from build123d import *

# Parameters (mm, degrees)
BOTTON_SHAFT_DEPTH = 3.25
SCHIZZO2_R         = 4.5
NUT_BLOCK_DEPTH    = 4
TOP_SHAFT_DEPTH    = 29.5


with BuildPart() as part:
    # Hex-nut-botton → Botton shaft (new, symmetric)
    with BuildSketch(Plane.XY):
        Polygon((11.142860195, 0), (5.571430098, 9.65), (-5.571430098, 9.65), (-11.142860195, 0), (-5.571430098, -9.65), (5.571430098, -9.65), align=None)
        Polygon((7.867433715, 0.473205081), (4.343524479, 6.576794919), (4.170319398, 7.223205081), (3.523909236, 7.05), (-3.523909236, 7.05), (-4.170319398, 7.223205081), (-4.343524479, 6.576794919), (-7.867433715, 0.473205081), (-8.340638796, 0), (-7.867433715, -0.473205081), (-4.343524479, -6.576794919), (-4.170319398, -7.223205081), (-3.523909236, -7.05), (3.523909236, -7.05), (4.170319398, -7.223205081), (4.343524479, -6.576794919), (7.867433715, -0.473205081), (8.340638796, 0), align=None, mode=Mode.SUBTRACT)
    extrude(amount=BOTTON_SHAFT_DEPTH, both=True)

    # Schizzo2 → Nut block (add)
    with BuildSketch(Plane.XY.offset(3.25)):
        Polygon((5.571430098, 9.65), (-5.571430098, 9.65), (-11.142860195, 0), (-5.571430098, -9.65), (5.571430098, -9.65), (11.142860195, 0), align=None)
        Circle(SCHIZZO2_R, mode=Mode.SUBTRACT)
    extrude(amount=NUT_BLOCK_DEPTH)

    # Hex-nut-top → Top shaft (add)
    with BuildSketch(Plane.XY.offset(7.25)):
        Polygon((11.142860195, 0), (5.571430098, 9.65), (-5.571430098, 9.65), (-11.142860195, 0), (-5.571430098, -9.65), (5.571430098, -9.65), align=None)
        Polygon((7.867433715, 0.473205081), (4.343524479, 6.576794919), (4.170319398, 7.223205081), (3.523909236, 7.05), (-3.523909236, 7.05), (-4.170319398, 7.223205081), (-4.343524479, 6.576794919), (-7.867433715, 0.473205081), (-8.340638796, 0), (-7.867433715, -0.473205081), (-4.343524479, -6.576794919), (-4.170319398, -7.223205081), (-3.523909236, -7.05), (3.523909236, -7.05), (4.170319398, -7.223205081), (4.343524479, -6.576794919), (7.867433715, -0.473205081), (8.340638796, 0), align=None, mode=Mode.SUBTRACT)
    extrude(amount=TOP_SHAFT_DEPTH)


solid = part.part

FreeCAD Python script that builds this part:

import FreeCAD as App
import Part
import Sketcher
Q = App.Units.Quantity

doc = App.newDocument("Part")
body = doc.addObject("PartDesign::Body", "Body")

# Sketch on XY plane
sketch1 = body.newObject("Sketcher::SketchObject", "Sketch")
sketch1.AttachmentSupport = (doc.getObject("XY_Plane"), [""])
sketch1.MapMode = "FlatFace"
sketch1.addGeometry([
    Part.LineSegment(App.Vector(11.1, 0, 0), App.Vector(5.6, 9.7, 0)),  # 0
    Part.LineSegment(App.Vector(5.6, 9.7, 0), App.Vector(-5.6, 9.7, 0)),  # 1
    Part.LineSegment(App.Vector(-5.6, 9.7, 0), App.Vector(-11.1, 0, 0)),  # 2
    Part.LineSegment(App.Vector(-11.1, 0, 0), App.Vector(-5.6, -9.7, 0)),  # 3
    Part.LineSegment(App.Vector(-5.6, -9.7, 0), App.Vector(5.6, -9.7, 0)),  # 4
    Part.LineSegment(App.Vector(5.6, -9.7, 0), App.Vector(11.1, 0, 0)),  # 5
    Part.LineSegment(App.Vector(4.3, 6.6, 0), App.Vector(7.9, 0.5, 0)),  # 6
    Part.LineSegment(App.Vector(7.9, 0.5, 0), App.Vector(8.3, 0, 0)),  # 7
    Part.LineSegment(App.Vector(8.3, 0, 0), App.Vector(7.9, -0.5, 0)),  # 8
    Part.LineSegment(App.Vector(7.9, -0.5, 0), App.Vector(4.3, -6.6, 0)),  # 9
    Part.LineSegment(App.Vector(4.3, -6.6, 0), App.Vector(4.2, -7.2, 0)),  # 10
    Part.LineSegment(App.Vector(4.2, -7.2, 0), App.Vector(3.5, -7, 0)),  # 11
    Part.LineSegment(App.Vector(3.5, -7, 0), App.Vector(-3.5, -7, 0)),  # 12
    Part.LineSegment(App.Vector(-3.5, -7, 0), App.Vector(-4.2, -7.2, 0)),  # 13
    Part.LineSegment(App.Vector(-4.2, -7.2, 0), App.Vector(-4.3, -6.6, 0)),  # 14
    Part.LineSegment(App.Vector(-4.3, -6.6, 0), App.Vector(-7.9, -0.5, 0)),  # 15
    Part.LineSegment(App.Vector(-7.9, -0.5, 0), App.Vector(-8.3, 0, 0)),  # 16
    Part.LineSegment(App.Vector(-8.3, 0, 0), App.Vector(-7.9, 0.5, 0)),  # 17
    Part.LineSegment(App.Vector(-7.9, 0.5, 0), App.Vector(-4.3, 6.6, 0)),  # 18
    Part.LineSegment(App.Vector(-4.3, 6.6, 0), App.Vector(-4.2, 7.2, 0)),  # 19
    Part.LineSegment(App.Vector(-4.2, 7.2, 0), App.Vector(-3.5, 7, 0)),  # 20
    Part.LineSegment(App.Vector(-3.5, 7, 0), App.Vector(3.5, 7, 0)),  # 21
    Part.LineSegment(App.Vector(3.5, 7, 0), App.Vector(4.2, 7.2, 0)),  # 22
    Part.LineSegment(App.Vector(4.2, 7.2, 0), App.Vector(4.3, 6.6, 0)),  # 23
], False)
sketch1.addConstraint([
    Sketcher.Constraint("Coincident", 0, 2, 1, 1),
    Sketcher.Constraint("Coincident", 1, 2, 2, 1),
    Sketcher.Constraint("Coincident", 2, 2, 3, 1),
    Sketcher.Constraint("Coincident", 3, 2, 4, 1),
    Sketcher.Constraint("Coincident", 4, 2, 5, 1),
    Sketcher.Constraint("Coincident", 5, 2, 0, 1),
    Sketcher.Constraint("Coincident", 6, 2, 7, 1),
    Sketcher.Constraint("Coincident", 7, 2, 8, 1),
    Sketcher.Constraint("Coincident", 8, 2, 9, 1),
    Sketcher.Constraint("Coincident", 9, 2, 10, 1),
    Sketcher.Constraint("Coincident", 10, 2, 11, 1),
    Sketcher.Constraint("Coincident", 11, 2, 12, 1),
    Sketcher.Constraint("Coincident", 12, 2, 13, 1),
    Sketcher.Constraint("Coincident", 13, 2, 14, 1),
    Sketcher.Constraint("Coincident", 14, 2, 15, 1),
    Sketcher.Constraint("Coincident", 15, 2, 16, 1),
    Sketcher.Constraint("Coincident", 16, 2, 17, 1),
    Sketcher.Constraint("Coincident", 17, 2, 18, 1),
    Sketcher.Constraint("Coincident", 18, 2, 19, 1),
    Sketcher.Constraint("Coincident", 19, 2, 20, 1),
    Sketcher.Constraint("Coincident", 20, 2, 21, 1),
    Sketcher.Constraint("Coincident", 21, 2, 22, 1),
    Sketcher.Constraint("Coincident", 22, 2, 23, 1),
    Sketcher.Constraint("Coincident", 23, 2, 6, 1),
    Sketcher.Constraint("Horizontal", 1),
    Sketcher.Constraint("Horizontal", 4),
    Sketcher.Constraint("Horizontal", 12),
    Sketcher.Constraint("Horizontal", 21),
    Sketcher.Constraint("Symmetric", 0, 2, 3, 2, -1, 1),
    Sketcher.Constraint("Symmetric", 2, 2, 5, 2, -1, 1),
    Sketcher.Constraint("Symmetric", 6, 2, 15, 2, -1, 1),
    Sketcher.Constraint("Symmetric", 7, 2, 16, 2, -1, 1),
    Sketcher.Constraint("Symmetric", 8, 2, 17, 2, -1, 1),
    Sketcher.Constraint("Symmetric", 9, 2, 18, 2, -1, 1),
    Sketcher.Constraint("Symmetric", 10, 2, 19, 2, -1, 1),
    Sketcher.Constraint("Symmetric", 11, 2, 20, 2, -1, 1),
    Sketcher.Constraint("Symmetric", 13, 2, 22, 2, -1, 1),
    Sketcher.Constraint("Symmetric", 14, 2, 23, 2, -1, 1),
    Sketcher.Constraint("Symmetric", 10, 2, 13, 2, -2),
    Sketcher.Constraint("Symmetric", 9, 2, 14, 2, -2),
    Sketcher.Constraint("Symmetric", 8, 2, 15, 2, -2),
    Sketcher.Constraint("PointOnObject", 2, 2, -1),
    Sketcher.Constraint("PointOnObject", 7, 2, -1),
    Sketcher.Constraint("Parallel", 2, 5),
    Sketcher.Constraint("Parallel", 3, 6),
    Sketcher.Constraint("Perpendicular", 7, 8),
    Sketcher.Constraint("Parallel", 5, 9),
    Sketcher.Constraint("Perpendicular", 10, 11),
    Sketcher.Constraint("Perpendicular", 13, 14),
    Sketcher.Constraint("Perpendicular", 14, 22),
    Sketcher.Constraint("Equal", 8, 10),
    Sketcher.Constraint("Equal", 10, 11),
    Sketcher.Constraint("Angle", 0, Q("120 deg")),
    Sketcher.Constraint("Angle", 10, Q("-105 deg")),
    Sketcher.Constraint("DistanceY", 3, 2, 1, 2, 19.3),
    Sketcher.Constraint("DistanceY", 4, 2, 11, 2, 2.6),
    Sketcher.Constraint("DistanceY", 10, 2, 8, 2, 6.75),
    Sketcher.Constraint("DistanceX", 1, 2, 1, 1, 11.14286),
    Sketcher.Constraint("DistanceX", 12, 2, 12, 1, 7.047818),
])
pad1 = body.newObject("PartDesign::Pad", "Pad")
pad1.Profile = sketch1
pad1.Length = 6.5
pad1.Midplane = True

# Sketch on XY plane
sketch2 = body.newObject("Sketcher::SketchObject", "Sketch001")
sketch2.AttachmentSupport = (doc.getObject("XY_Plane"), [""])
sketch2.MapMode = "FlatFace"
sketch2.AttachmentOffset = App.Placement(App.Vector(0, 0, 3.25), App.Rotation())
sketch2.addGeometry([
    Part.LineSegment(App.Vector(5.6, 9.7, 0), App.Vector(-5.6, 9.7, 0)),  # 0
    Part.LineSegment(App.Vector(-5.6, 9.7, 0), App.Vector(-11.1, 0, 0)),  # 1
    Part.LineSegment(App.Vector(-11.1, 0, 0), App.Vector(-5.6, -9.7, 0)),  # 2
    Part.LineSegment(App.Vector(-5.6, -9.7, 0), App.Vector(5.6, -9.7, 0)),  # 3
    Part.LineSegment(App.Vector(5.6, -9.7, 0), App.Vector(11.1, 0, 0)),  # 4
    Part.LineSegment(App.Vector(11.1, 0, 0), App.Vector(5.6, 9.7, 0)),  # 5
    Part.Circle(App.Vector(0, 0, 0), App.Vector(0, 0, 1), 4.5),  # 6
], False)
sketch2.addConstraint([
    Sketcher.Constraint("Coincident", 0, 2, 1, 1),
    Sketcher.Constraint("Coincident", 1, 2, 2, 1),
    Sketcher.Constraint("Coincident", 2, 2, 3, 1),
    Sketcher.Constraint("Coincident", 3, 2, 4, 1),
    Sketcher.Constraint("Coincident", 4, 2, 5, 1),
    Sketcher.Constraint("Coincident", 5, 2, 0, 1),
    Sketcher.Constraint("Horizontal", 0),
    Sketcher.Constraint("Horizontal", 3),
    Sketcher.Constraint("Coincident", 6, 3, -1, 1),
    Sketcher.Constraint("Symmetric", 0, 2, 3, 2, -1, 1),
    Sketcher.Constraint("Symmetric", 1, 2, 4, 2, -1, 1),
    Sketcher.Constraint("PointOnObject", 1, 2, -1),
    Sketcher.Constraint("Parallel", 2, 5),
    Sketcher.Constraint("Vertical", 0, 2, 2, 2),
    Sketcher.Constraint("Diameter", 6, 9.0),
    Sketcher.Constraint("Angle", 1, Q("-120 deg")),
    Sketcher.Constraint("DistanceY", 2, 2, 0, 2, 19.3),
    Sketcher.Constraint("DistanceX", 0, 2, 0, 1, 11.14286),
])
pad2 = body.newObject("PartDesign::Pad", "Pad001")
pad2.Profile = sketch2
pad2.Length = 4

# Sketch on XY plane
sketch3 = body.newObject("Sketcher::SketchObject", "Sketch002")
sketch3.AttachmentSupport = (doc.getObject("XY_Plane"), [""])
sketch3.MapMode = "FlatFace"
sketch3.AttachmentOffset = App.Placement(App.Vector(0, 0, 7.25), App.Rotation())
sketch3.addGeometry([
    Part.LineSegment(App.Vector(11.1, 0, 0), App.Vector(5.6, 9.7, 0)),  # 0
    Part.LineSegment(App.Vector(5.6, 9.7, 0), App.Vector(-5.6, 9.7, 0)),  # 1
    Part.LineSegment(App.Vector(-5.6, 9.7, 0), App.Vector(-11.1, 0, 0)),  # 2
    Part.LineSegment(App.Vector(-11.1, 0, 0), App.Vector(-5.6, -9.7, 0)),  # 3
    Part.LineSegment(App.Vector(-5.6, -9.7, 0), App.Vector(5.6, -9.7, 0)),  # 4
    Part.LineSegment(App.Vector(5.6, -9.7, 0), App.Vector(11.1, 0, 0)),  # 5
    Part.LineSegment(App.Vector(4.3, 6.6, 0), App.Vector(7.9, 0.5, 0)),  # 6
    Part.LineSegment(App.Vector(7.9, 0.5, 0), App.Vector(8.3, 0, 0)),  # 7
    Part.LineSegment(App.Vector(8.3, 0, 0), App.Vector(7.9, -0.5, 0)),  # 8
    Part.LineSegment(App.Vector(7.9, -0.5, 0), App.Vector(4.3, -6.6, 0)),  # 9
    Part.LineSegment(App.Vector(4.3, -6.6, 0), App.Vector(4.2, -7.2, 0)),  # 10
    Part.LineSegment(App.Vector(4.2, -7.2, 0), App.Vector(3.5, -7, 0)),  # 11
    Part.LineSegment(App.Vector(3.5, -7, 0), App.Vector(-3.5, -7, 0)),  # 12
    Part.LineSegment(App.Vector(-3.5, -7, 0), App.Vector(-4.2, -7.2, 0)),  # 13
    Part.LineSegment(App.Vector(-4.2, -7.2, 0), App.Vector(-4.3, -6.6, 0)),  # 14
    Part.LineSegment(App.Vector(-4.3, -6.6, 0), App.Vector(-7.9, -0.5, 0)),  # 15
    Part.LineSegment(App.Vector(-7.9, -0.5, 0), App.Vector(-8.3, 0, 0)),  # 16
    Part.LineSegment(App.Vector(-8.3, 0, 0), App.Vector(-7.9, 0.5, 0)),  # 17
    Part.LineSegment(App.Vector(-7.9, 0.5, 0), App.Vector(-4.3, 6.6, 0)),  # 18
    Part.LineSegment(App.Vector(-4.3, 6.6, 0), App.Vector(-4.2, 7.2, 0)),  # 19
    Part.LineSegment(App.Vector(-4.2, 7.2, 0), App.Vector(-3.5, 7, 0)),  # 20
    Part.LineSegment(App.Vector(-3.5, 7, 0), App.Vector(3.5, 7, 0)),  # 21
    Part.LineSegment(App.Vector(3.5, 7, 0), App.Vector(4.2, 7.2, 0)),  # 22
    Part.LineSegment(App.Vector(4.2, 7.2, 0), App.Vector(4.3, 6.6, 0)),  # 23
], False)
sketch3.addConstraint([
    Sketcher.Constraint("Coincident", 0, 2, 1, 1),
    Sketcher.Constraint("Coincident", 1, 2, 2, 1),
    Sketcher.Constraint("Coincident", 2, 2, 3, 1),
    Sketcher.Constraint("Coincident", 3, 2, 4, 1),
    Sketcher.Constraint("Coincident", 4, 2, 5, 1),
    Sketcher.Constraint("Coincident", 5, 2, 0, 1),
    Sketcher.Constraint("Coincident", 6, 2, 7, 1),
    Sketcher.Constraint("Coincident", 7, 2, 8, 1),
    Sketcher.Constraint("Coincident", 8, 2, 9, 1),
    Sketcher.Constraint("Coincident", 9, 2, 10, 1),
    Sketcher.Constraint("Coincident", 10, 2, 11, 1),
    Sketcher.Constraint("Coincident", 11, 2, 12, 1),
    Sketcher.Constraint("Coincident", 12, 2, 13, 1),
    Sketcher.Constraint("Coincident", 13, 2, 14, 1),
    Sketcher.Constraint("Coincident", 14, 2, 15, 1),
    Sketcher.Constraint("Coincident", 15, 2, 16, 1),
    Sketcher.Constraint("Coincident", 16, 2, 17, 1),
    Sketcher.Constraint("Coincident", 17, 2, 18, 1),
    Sketcher.Constraint("Coincident", 18, 2, 19, 1),
    Sketcher.Constraint("Coincident", 19, 2, 20, 1),
    Sketcher.Constraint("Coincident", 20, 2, 21, 1),
    Sketcher.Constraint("Coincident", 21, 2, 22, 1),
    Sketcher.Constraint("Coincident", 22, 2, 23, 1),
    Sketcher.Constraint("Coincident", 23, 2, 6, 1),
    Sketcher.Constraint("Horizontal", 1),
    Sketcher.Constraint("Horizontal", 4),
    Sketcher.Constraint("Horizontal", 12),
    Sketcher.Constraint("Horizontal", 21),
    Sketcher.Constraint("Symmetric", 0, 2, 3, 2, -1, 1),
    Sketcher.Constraint("Symmetric", 2, 2, 5, 2, -1, 1),
    Sketcher.Constraint("Symmetric", 6, 2, 15, 2, -1, 1),
    Sketcher.Constraint("Symmetric", 7, 2, 16, 2, -1, 1),
    Sketcher.Constraint("Symmetric", 8, 2, 17, 2, -1, 1),
    Sketcher.Constraint("Symmetric", 9, 2, 18, 2, -1, 1),
    Sketcher.Constraint("Symmetric", 10, 2, 19, 2, -1, 1),
    Sketcher.Constraint("Symmetric", 11, 2, 20, 2, -1, 1),
    Sketcher.Constraint("Symmetric", 13, 2, 22, 2, -1, 1),
    Sketcher.Constraint("Symmetric", 14, 2, 23, 2, -1, 1),
    Sketcher.Constraint("Symmetric", 10, 2, 13, 2, -2),
    Sketcher.Constraint("Symmetric", 9, 2, 14, 2, -2),
    Sketcher.Constraint("Symmetric", 8, 2, 15, 2, -2),
    Sketcher.Constraint("PointOnObject", 2, 2, -1),
    Sketcher.Constraint("PointOnObject", 7, 2, -1),
    Sketcher.Constraint("Parallel", 2, 5),
    Sketcher.Constraint("Parallel", 3, 6),
    Sketcher.Constraint("Perpendicular", 7, 8),
    Sketcher.Constraint("Parallel", 5, 9),
    Sketcher.Constraint("Perpendicular", 10, 11),
    Sketcher.Constraint("Perpendicular", 13, 14),
    Sketcher.Constraint("Perpendicular", 14, 22),
    Sketcher.Constraint("Equal", 8, 10),
    Sketcher.Constraint("Equal", 10, 11),
    Sketcher.Constraint("Angle", 0, Q("120 deg")),
    Sketcher.Constraint("Angle", 10, Q("-105 deg")),
    Sketcher.Constraint("DistanceY", 3, 2, 1, 2, 19.3),
    Sketcher.Constraint("DistanceY", 4, 2, 11, 2, 2.6),
    Sketcher.Constraint("DistanceY", 10, 2, 8, 2, 6.75),
    Sketcher.Constraint("DistanceX", 1, 2, 1, 1, 11.14286),
    Sketcher.Constraint("DistanceX", 12, 2, 12, 1, 7.047818),
])
pad3 = body.newObject("PartDesign::Pad", "Pad002")
pad3.Profile = sketch3
pad3.Length = 29.5

doc.recompute()
